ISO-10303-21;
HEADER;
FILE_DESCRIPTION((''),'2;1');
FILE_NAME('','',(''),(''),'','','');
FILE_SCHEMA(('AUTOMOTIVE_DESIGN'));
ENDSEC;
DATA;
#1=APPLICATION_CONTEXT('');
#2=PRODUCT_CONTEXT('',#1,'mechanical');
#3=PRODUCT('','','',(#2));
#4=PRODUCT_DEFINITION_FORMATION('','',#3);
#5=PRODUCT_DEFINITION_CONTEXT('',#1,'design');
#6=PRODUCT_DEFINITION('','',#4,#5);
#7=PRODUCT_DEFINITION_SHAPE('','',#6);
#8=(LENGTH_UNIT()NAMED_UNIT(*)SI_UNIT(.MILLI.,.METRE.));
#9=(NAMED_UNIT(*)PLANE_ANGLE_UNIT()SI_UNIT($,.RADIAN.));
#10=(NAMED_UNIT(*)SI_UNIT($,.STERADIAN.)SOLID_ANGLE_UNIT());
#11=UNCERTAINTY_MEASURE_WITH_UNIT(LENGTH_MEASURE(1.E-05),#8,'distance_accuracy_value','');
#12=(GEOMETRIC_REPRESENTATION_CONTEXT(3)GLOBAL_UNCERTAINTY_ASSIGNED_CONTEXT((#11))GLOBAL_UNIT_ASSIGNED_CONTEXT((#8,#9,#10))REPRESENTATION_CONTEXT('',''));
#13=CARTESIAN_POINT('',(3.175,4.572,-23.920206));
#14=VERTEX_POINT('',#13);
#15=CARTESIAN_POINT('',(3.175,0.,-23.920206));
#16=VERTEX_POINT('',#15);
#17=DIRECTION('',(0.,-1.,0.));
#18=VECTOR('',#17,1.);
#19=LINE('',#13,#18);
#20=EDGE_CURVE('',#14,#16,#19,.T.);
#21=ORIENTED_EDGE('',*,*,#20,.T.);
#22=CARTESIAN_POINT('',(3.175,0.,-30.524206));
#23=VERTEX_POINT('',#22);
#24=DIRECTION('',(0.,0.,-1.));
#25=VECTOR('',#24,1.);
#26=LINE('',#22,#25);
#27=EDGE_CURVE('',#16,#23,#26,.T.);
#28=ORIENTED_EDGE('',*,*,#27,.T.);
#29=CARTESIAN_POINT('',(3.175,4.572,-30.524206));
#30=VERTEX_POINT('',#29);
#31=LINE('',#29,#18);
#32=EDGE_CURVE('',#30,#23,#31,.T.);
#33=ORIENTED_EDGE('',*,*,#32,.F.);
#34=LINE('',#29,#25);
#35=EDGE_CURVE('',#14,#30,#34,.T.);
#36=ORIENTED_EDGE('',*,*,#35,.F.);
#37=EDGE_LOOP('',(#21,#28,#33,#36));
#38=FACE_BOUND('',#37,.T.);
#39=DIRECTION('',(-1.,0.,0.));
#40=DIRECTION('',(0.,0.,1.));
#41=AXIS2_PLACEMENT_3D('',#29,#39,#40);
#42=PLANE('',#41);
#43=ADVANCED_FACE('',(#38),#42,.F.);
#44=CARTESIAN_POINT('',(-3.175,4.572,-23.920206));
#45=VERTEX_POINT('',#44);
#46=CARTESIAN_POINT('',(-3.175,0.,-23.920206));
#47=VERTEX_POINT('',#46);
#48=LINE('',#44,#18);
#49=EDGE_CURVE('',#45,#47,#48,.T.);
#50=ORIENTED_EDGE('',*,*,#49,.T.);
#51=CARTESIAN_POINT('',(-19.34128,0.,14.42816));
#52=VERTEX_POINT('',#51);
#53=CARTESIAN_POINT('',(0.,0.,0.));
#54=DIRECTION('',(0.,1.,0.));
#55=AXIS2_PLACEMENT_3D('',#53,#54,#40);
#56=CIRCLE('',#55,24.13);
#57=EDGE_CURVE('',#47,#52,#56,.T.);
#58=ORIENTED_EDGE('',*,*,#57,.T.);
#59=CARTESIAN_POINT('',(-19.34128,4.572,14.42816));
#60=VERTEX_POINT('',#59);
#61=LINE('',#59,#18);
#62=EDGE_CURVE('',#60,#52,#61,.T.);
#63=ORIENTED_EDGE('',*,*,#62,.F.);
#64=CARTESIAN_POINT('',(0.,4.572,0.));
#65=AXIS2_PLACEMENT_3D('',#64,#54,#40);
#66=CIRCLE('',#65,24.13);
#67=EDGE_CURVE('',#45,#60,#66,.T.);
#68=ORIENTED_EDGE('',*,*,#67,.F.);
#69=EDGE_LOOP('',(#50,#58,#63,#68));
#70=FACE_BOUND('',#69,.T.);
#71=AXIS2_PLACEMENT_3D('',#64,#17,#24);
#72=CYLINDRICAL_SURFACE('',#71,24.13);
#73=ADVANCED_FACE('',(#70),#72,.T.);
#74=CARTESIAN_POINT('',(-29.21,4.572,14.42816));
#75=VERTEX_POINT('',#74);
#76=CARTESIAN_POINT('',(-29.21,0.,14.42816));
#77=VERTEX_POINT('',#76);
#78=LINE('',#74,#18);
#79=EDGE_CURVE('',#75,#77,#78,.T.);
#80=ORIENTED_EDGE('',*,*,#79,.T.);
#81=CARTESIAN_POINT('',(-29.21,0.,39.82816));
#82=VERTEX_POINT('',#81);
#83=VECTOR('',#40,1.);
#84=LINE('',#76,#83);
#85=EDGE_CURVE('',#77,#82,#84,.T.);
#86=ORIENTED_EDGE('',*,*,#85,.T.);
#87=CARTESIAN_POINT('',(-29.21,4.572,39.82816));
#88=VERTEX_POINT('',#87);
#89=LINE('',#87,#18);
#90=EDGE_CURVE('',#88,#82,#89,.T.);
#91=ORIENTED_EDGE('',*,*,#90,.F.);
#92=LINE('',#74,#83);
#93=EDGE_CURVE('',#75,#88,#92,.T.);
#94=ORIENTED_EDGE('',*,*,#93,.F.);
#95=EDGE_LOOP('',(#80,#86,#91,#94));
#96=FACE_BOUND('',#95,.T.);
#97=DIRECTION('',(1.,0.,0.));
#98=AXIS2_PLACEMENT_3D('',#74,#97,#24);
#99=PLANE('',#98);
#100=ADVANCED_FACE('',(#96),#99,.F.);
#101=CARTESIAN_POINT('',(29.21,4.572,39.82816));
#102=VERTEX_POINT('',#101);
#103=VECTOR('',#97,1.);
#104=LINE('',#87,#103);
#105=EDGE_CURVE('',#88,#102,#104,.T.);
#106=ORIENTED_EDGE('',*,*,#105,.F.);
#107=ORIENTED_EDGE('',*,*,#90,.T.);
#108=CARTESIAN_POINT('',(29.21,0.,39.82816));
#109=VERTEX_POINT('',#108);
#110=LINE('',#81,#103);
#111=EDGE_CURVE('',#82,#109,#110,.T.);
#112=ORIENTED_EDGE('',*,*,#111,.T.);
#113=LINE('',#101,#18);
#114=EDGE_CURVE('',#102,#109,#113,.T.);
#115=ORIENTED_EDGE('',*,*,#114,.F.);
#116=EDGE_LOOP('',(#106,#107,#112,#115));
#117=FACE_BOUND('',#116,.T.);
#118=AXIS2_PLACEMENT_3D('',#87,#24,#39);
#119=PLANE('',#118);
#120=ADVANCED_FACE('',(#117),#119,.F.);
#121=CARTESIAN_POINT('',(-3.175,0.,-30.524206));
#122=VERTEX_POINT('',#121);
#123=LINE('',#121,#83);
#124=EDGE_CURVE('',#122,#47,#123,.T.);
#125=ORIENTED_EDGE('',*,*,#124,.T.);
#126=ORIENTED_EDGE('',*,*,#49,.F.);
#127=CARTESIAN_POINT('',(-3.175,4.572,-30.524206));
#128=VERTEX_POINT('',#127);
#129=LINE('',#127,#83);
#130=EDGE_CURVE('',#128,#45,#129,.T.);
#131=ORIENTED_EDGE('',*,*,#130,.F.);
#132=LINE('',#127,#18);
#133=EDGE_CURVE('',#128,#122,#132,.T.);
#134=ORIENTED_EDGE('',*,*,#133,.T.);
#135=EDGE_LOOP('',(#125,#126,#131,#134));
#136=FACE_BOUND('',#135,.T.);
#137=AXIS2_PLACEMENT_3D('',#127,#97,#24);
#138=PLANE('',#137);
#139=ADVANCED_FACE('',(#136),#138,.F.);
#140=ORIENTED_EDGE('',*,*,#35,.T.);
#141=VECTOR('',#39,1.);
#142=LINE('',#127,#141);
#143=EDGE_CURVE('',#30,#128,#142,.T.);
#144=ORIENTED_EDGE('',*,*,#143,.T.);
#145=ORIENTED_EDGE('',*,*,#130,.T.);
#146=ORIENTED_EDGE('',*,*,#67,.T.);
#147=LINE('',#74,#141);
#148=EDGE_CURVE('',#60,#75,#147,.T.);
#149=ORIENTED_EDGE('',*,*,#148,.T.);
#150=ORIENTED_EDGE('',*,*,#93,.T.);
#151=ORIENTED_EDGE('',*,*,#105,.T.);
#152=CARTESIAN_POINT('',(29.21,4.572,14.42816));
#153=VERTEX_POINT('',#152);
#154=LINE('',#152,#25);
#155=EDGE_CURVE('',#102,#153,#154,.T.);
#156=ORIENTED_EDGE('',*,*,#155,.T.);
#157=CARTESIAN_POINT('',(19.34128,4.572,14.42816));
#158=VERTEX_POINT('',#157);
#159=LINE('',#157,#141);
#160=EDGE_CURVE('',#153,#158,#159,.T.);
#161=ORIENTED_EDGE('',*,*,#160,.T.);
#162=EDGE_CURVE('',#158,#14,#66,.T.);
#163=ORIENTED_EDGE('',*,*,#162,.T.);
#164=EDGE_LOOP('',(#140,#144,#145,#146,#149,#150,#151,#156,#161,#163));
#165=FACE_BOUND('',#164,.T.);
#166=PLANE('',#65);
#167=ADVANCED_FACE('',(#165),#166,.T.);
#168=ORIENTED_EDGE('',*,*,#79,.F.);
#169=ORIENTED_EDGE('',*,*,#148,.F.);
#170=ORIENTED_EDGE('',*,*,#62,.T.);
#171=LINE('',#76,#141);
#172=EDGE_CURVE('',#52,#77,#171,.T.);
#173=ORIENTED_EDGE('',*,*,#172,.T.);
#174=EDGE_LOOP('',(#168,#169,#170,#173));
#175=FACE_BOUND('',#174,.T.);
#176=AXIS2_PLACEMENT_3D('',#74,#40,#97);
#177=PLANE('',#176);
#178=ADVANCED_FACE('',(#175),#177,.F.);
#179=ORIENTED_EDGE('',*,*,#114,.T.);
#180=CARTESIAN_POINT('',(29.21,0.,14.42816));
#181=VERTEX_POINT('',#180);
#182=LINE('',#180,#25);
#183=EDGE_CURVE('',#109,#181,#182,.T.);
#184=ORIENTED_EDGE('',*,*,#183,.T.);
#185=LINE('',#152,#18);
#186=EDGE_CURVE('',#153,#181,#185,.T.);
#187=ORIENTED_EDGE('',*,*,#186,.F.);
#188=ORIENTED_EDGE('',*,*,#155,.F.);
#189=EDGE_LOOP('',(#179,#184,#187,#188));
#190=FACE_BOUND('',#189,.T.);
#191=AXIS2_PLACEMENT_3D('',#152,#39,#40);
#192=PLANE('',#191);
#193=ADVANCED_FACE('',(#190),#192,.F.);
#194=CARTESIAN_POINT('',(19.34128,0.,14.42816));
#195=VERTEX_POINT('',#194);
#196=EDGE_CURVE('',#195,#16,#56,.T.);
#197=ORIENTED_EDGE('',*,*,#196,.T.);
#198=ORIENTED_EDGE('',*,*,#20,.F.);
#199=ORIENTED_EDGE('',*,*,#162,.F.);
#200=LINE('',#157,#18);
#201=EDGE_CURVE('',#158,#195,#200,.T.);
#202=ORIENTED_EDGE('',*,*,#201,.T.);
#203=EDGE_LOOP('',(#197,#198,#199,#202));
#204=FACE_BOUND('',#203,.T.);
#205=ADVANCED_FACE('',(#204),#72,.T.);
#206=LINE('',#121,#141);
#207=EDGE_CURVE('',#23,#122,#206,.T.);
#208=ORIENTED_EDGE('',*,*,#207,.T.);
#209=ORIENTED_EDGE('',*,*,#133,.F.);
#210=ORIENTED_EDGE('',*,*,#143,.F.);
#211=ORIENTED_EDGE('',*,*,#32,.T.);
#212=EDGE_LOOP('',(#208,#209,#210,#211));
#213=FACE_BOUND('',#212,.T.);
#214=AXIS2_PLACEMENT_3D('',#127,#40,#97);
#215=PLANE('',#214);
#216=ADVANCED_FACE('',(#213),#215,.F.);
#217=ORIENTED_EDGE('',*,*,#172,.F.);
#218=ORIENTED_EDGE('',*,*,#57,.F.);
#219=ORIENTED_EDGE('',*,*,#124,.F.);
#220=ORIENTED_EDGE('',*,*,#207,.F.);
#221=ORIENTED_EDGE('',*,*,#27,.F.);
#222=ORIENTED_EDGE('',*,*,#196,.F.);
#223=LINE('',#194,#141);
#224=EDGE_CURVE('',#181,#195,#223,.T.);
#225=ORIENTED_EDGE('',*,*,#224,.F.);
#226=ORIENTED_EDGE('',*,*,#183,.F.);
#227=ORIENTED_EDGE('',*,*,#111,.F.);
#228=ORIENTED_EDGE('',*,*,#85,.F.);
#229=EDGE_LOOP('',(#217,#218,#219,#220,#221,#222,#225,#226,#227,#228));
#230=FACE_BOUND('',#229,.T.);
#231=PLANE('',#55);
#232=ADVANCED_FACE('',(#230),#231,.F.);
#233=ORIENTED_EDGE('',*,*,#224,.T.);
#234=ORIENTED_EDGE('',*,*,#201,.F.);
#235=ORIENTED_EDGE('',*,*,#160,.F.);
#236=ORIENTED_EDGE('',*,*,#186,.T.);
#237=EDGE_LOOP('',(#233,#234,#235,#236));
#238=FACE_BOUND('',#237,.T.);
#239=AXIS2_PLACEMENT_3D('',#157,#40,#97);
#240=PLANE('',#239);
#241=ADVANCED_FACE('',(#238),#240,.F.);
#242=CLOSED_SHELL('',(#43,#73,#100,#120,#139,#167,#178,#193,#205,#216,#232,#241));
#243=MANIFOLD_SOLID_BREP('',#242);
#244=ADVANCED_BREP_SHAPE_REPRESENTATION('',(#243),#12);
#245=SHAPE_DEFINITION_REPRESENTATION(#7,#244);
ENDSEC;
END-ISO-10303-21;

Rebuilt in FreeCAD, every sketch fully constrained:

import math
import FreeCAD as App
import Part
import Sketcher
Q = App.Units.Quantity

doc = App.newDocument("Part")
params = doc.addObject("Spreadsheet::Sheet", "Params")
for row, (alias, value) in enumerate([
    ("sketch1_height", "1 in"),
    ("sketch1_radius", "0.95 in"),
    ("sketch1_width", "2.3 in"),
    ("sketch1_width2", "0.25 in"),
    ("sketch1_height2", "0.26 in"),
    ("pad1_length", "0.18 in"),
], start=1):
    params.set(f"A{row}", alias)
    params.set(f"B{row}", "=" + value)
    params.setAlias(f"B{row}", alias)

body = doc.addObject("PartDesign::Body", "Body")

sketch1 = body.newObject("Sketcher::SketchObject", "Sketch")
sketch1.AttachmentSupport = (doc.getObject("XZ_Plane"), [""])
sketch1.MapMode = "FlatFace"
sketch1.addGeometry(Part.LineSegment(App.Vector(3, -31, 0), App.Vector(-3, -31, 0)), False)
sketch1.addGeometry(Part.LineSegment(App.Vector(-3, -31, 0), App.Vector(-3, -24, 0)), False)
sketch1.addGeometry(Part.ArcOfCircle(Part.Circle(App.Vector(0, 0, 0), App.Vector(0, 0, 1), 24), math.radians(143), math.radians(262)), False)
sketch1.addGeometry(Part.LineSegment(App.Vector(-19, 14, 0), App.Vector(-29, 14, 0)), False)
sketch1.addGeometry(Part.LineSegment(App.Vector(-29, 14, 0), App.Vector(-29, 40, 0)), False)
sketch1.addGeometry(Part.LineSegment(App.Vector(-29, 40, 0), App.Vector(29, 40, 0)), False)
sketch1.addGeometry(Part.LineSegment(App.Vector(29, 40, 0), App.Vector(29, 14, 0)), False)
sketch1.addGeometry(Part.LineSegment(App.Vector(29, 14, 0), App.Vector(19, 14, 0)), False)
sketch1.addGeometry(Part.ArcOfCircle(Part.Circle(App.Vector(0, 0, 0), App.Vector(0, 0, 1), 24), math.radians(-82), math.radians(37)), False)
sketch1.addGeometry(Part.LineSegment(App.Vector(3, -24, 0), App.Vector(3, -31, 0)), False)
sketch1.addConstraint(Sketcher.Constraint("Coincident", 0, 2, 1, 1))
sketch1.addConstraint(Sketcher.Constraint("Coincident", 1, 2, 2, 2))
sketch1.addConstraint(Sketcher.Constraint("Coincident", 2, 1, 3, 1))
sketch1.addConstraint(Sketcher.Constraint("Coincident", 3, 2, 4, 1))
sketch1.addConstraint(Sketcher.Constraint("Coincident", 4, 2, 5, 1))
sketch1.addConstraint(Sketcher.Constraint("Coincident", 5, 2, 6, 1))
sketch1.addConstraint(Sketcher.Constraint("Coincident", 6, 2, 7, 1))
sketch1.addConstraint(Sketcher.Constraint("Coincident", 7, 2, 8, 2))
sketch1.addConstraint(Sketcher.Constraint("Coincident", 8, 1, 9, 1))
sketch1.addConstraint(Sketcher.Constraint("Coincident", 9, 2, 0, 1))
sketch1.addConstraint(Sketcher.Constraint("Horizontal", 0))
sketch1.addConstraint(Sketcher.Constraint("Vertical", 1))
sketch1.addConstraint(Sketcher.Constraint("Horizontal", 3))
sketch1.addConstraint(Sketcher.Constraint("Vertical", 4))
sketch1.addConstraint(Sketcher.Constraint("Horizontal", 5))
sketch1.addConstraint(Sketcher.Constraint("Vertical", 6))
sketch1.addConstraint(Sketcher.Constraint("Horizontal", 7))
sketch1.addConstraint(Sketcher.Constraint("Vertical", 9))
sketch1.addConstraint(Sketcher.Constraint("Coincident", 2, 3, -1, 1))
sketch1.addConstraint(Sketcher.Constraint("Coincident", 8, 3, -1, 1))
sketch1.addConstraint(Sketcher.Constraint("Equal", 2, 8))
sketch1.addConstraint(Sketcher.Constraint("Symmetric", 3, 2, 6, 2, -2))
sketch1.addConstraint(Sketcher.Constraint("Horizontal", 1, 2, 8, 1))
sketch1.addConstraint(Sketcher.Constraint("DistanceY", 4, 1, 4, 2, Q("1 in")))
sketch1.addConstraint(Sketcher.Constraint("Radius", 2, Q("0.95 in")))
sketch1.addConstraint(Sketcher.Constraint("DistanceX", 5, 1, 5, 2, Q("2.3 in")))
sketch1.addConstraint(Sketcher.Constraint("DistanceX", 0, 2, 0, 1, Q("0.25 in")))
sketch1.addConstraint(Sketcher.Constraint("DistanceY", 1, 1, 1, 2, Q("0.26 in")))
sketch1.addConstraint(Sketcher.Constraint("DistanceX", 3, 2, 3, 1, Q("9.86872 mm")))
sketch1.setExpression("Constraints[23]", "Params.sketch1_height")
sketch1.setExpression("Constraints[24]", "Params.sketch1_radius")
sketch1.setExpression("Constraints[25]", "Params.sketch1_width")
sketch1.setExpression("Constraints[26]", "Params.sketch1_width2")
sketch1.setExpression("Constraints[27]", "Params.sketch1_height2")
pad1 = body.newObject("PartDesign::Pad", "Pad")
pad1.Profile = sketch1
pad1.setExpression("Length", "Params.pad1_length")
pad1.Reversed = True

doc.recompute()
